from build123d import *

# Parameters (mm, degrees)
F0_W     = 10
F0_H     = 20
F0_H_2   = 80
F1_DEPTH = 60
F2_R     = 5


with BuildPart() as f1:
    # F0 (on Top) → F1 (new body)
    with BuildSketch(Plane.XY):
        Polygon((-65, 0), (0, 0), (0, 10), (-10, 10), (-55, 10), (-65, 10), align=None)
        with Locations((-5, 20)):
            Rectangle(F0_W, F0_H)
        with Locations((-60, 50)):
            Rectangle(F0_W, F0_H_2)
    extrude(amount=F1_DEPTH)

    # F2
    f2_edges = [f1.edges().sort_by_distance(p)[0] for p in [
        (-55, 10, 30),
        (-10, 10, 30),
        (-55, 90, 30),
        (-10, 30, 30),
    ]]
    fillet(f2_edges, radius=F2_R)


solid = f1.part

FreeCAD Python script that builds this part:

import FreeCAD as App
import Part
import Sketcher

V = App.Vector


def edges_at(feature, points):
    """Names of the edges that pass closest to the given points."""
    edges = feature.Shape.Edges
    near = lambda p: min(range(len(edges)), key=lambda i: edges[i].distToShape(Part.Vertex(*p))[0])
    return sorted({f"Edge{near(p) + 1}" for p in points})


def add_polygon(sketch, points):
    """Adds a closed chain of lines whose ends are joined by coincident constraints."""
    first, n = sketch.GeometryCount, len(points)
    for a, b in zip(points, points[1:] + points[:1]):
        sketch.addGeometry(Part.LineSegment(App.Vector(*a, 0), App.Vector(*b, 0)), False)
    for i in range(n):
        sketch.addConstraint(Sketcher.Constraint("Coincident", first + i, 2, first + (i + 1) % n, 1))

doc = App.newDocument("Part")
params = doc.addObject("Spreadsheet::Sheet", "Params")
for row, (alias, value) in enumerate([
    ("sketch1_width", "65 mm"),
    ("sketch1_width2", "10 mm"),
    ("sketch1_height", "30 mm"),
    ("sketch1_height2", "20 mm"),
    ("sketch1_height3", "80 mm"),
    ("pad1_length", "60 mm"),
    ("fillet_radius", "5 mm"),
], start=1):
    params.set(f"A{row}", alias)
    params.set(f"B{row}", "=" + value)
    params.setAlias(f"B{row}", alias)

body = doc.addObject("PartDesign::Body", "Body")

sketch1 = body.newObject("Sketcher::SketchObject", "Sketch")
sketch1.AttachmentSupport = (doc.getObject("XY_Plane"), [""])
sketch1.MapMode = "FlatFace"
add_polygon(sketch1, [(-65, 0), (0, 0), (0, 30), (-10, 30), (-10, 10), (-55, 10), (-55, 90), (-65, 90)])
sketch1.addConstraint([
    Sketcher.Constraint("Horizontal", 0),
    Sketcher.Constraint("Vertical", 1),
    Sketcher.Constraint("Horizontal", 2),
    Sketcher.Constraint("Vertical", 3),
    Sketcher.Constraint("Horizontal", 4),
    Sketcher.Constraint("Vertical", 5),
    Sketcher.Constraint("Horizontal", 6),
    Sketcher.Constraint("Vertical", 7),
    Sketcher.Constraint("Coincident", 0, 2, -1, 1),
    Sketcher.Constraint("Equal", 2, 6),
    Sketcher.Constraint("DistanceX", 0, 1, 0, 2, 65.0),
    Sketcher.Constraint("DistanceX", 2, 2, 2, 1, 10.0),
    Sketcher.Constraint("DistanceY", 1, 1, 1, 2, 30.0),
    Sketcher.Constraint("DistanceY", 3, 2, 3, 1, 20.0),
    Sketcher.Constraint("DistanceY", 5, 1, 5, 2, 80.0),
])
sketch1.setExpression("Constraints[18]", "Params.sketch1_width")
sketch1.setExpression("Constraints[19]", "Params.sketch1_width2")
sketch1.setExpression("Constraints[20]", "Params.sketch1_height")
sketch1.setExpression("Constraints[21]", "Params.sketch1_height2")
sketch1.setExpression("Constraints[22]", "Params.sketch1_height3")
pad1 = body.newObject("PartDesign::Pad", "Pad")
pad1.Profile = sketch1
pad1.setExpression("Length", "Params.pad1_length")
doc.recompute()

fillet = body.newObject("PartDesign::Fillet", "Fillet")
fillet.Base = (pad1, edges_at(pad1, [
    (-55, 10, 30),
    (-10, 10, 30),
    (-55, 90, 30),
    (-10, 30, 30),
]))
fillet.setExpression("Radius", "Params.fillet_radius")

doc.recompute()
